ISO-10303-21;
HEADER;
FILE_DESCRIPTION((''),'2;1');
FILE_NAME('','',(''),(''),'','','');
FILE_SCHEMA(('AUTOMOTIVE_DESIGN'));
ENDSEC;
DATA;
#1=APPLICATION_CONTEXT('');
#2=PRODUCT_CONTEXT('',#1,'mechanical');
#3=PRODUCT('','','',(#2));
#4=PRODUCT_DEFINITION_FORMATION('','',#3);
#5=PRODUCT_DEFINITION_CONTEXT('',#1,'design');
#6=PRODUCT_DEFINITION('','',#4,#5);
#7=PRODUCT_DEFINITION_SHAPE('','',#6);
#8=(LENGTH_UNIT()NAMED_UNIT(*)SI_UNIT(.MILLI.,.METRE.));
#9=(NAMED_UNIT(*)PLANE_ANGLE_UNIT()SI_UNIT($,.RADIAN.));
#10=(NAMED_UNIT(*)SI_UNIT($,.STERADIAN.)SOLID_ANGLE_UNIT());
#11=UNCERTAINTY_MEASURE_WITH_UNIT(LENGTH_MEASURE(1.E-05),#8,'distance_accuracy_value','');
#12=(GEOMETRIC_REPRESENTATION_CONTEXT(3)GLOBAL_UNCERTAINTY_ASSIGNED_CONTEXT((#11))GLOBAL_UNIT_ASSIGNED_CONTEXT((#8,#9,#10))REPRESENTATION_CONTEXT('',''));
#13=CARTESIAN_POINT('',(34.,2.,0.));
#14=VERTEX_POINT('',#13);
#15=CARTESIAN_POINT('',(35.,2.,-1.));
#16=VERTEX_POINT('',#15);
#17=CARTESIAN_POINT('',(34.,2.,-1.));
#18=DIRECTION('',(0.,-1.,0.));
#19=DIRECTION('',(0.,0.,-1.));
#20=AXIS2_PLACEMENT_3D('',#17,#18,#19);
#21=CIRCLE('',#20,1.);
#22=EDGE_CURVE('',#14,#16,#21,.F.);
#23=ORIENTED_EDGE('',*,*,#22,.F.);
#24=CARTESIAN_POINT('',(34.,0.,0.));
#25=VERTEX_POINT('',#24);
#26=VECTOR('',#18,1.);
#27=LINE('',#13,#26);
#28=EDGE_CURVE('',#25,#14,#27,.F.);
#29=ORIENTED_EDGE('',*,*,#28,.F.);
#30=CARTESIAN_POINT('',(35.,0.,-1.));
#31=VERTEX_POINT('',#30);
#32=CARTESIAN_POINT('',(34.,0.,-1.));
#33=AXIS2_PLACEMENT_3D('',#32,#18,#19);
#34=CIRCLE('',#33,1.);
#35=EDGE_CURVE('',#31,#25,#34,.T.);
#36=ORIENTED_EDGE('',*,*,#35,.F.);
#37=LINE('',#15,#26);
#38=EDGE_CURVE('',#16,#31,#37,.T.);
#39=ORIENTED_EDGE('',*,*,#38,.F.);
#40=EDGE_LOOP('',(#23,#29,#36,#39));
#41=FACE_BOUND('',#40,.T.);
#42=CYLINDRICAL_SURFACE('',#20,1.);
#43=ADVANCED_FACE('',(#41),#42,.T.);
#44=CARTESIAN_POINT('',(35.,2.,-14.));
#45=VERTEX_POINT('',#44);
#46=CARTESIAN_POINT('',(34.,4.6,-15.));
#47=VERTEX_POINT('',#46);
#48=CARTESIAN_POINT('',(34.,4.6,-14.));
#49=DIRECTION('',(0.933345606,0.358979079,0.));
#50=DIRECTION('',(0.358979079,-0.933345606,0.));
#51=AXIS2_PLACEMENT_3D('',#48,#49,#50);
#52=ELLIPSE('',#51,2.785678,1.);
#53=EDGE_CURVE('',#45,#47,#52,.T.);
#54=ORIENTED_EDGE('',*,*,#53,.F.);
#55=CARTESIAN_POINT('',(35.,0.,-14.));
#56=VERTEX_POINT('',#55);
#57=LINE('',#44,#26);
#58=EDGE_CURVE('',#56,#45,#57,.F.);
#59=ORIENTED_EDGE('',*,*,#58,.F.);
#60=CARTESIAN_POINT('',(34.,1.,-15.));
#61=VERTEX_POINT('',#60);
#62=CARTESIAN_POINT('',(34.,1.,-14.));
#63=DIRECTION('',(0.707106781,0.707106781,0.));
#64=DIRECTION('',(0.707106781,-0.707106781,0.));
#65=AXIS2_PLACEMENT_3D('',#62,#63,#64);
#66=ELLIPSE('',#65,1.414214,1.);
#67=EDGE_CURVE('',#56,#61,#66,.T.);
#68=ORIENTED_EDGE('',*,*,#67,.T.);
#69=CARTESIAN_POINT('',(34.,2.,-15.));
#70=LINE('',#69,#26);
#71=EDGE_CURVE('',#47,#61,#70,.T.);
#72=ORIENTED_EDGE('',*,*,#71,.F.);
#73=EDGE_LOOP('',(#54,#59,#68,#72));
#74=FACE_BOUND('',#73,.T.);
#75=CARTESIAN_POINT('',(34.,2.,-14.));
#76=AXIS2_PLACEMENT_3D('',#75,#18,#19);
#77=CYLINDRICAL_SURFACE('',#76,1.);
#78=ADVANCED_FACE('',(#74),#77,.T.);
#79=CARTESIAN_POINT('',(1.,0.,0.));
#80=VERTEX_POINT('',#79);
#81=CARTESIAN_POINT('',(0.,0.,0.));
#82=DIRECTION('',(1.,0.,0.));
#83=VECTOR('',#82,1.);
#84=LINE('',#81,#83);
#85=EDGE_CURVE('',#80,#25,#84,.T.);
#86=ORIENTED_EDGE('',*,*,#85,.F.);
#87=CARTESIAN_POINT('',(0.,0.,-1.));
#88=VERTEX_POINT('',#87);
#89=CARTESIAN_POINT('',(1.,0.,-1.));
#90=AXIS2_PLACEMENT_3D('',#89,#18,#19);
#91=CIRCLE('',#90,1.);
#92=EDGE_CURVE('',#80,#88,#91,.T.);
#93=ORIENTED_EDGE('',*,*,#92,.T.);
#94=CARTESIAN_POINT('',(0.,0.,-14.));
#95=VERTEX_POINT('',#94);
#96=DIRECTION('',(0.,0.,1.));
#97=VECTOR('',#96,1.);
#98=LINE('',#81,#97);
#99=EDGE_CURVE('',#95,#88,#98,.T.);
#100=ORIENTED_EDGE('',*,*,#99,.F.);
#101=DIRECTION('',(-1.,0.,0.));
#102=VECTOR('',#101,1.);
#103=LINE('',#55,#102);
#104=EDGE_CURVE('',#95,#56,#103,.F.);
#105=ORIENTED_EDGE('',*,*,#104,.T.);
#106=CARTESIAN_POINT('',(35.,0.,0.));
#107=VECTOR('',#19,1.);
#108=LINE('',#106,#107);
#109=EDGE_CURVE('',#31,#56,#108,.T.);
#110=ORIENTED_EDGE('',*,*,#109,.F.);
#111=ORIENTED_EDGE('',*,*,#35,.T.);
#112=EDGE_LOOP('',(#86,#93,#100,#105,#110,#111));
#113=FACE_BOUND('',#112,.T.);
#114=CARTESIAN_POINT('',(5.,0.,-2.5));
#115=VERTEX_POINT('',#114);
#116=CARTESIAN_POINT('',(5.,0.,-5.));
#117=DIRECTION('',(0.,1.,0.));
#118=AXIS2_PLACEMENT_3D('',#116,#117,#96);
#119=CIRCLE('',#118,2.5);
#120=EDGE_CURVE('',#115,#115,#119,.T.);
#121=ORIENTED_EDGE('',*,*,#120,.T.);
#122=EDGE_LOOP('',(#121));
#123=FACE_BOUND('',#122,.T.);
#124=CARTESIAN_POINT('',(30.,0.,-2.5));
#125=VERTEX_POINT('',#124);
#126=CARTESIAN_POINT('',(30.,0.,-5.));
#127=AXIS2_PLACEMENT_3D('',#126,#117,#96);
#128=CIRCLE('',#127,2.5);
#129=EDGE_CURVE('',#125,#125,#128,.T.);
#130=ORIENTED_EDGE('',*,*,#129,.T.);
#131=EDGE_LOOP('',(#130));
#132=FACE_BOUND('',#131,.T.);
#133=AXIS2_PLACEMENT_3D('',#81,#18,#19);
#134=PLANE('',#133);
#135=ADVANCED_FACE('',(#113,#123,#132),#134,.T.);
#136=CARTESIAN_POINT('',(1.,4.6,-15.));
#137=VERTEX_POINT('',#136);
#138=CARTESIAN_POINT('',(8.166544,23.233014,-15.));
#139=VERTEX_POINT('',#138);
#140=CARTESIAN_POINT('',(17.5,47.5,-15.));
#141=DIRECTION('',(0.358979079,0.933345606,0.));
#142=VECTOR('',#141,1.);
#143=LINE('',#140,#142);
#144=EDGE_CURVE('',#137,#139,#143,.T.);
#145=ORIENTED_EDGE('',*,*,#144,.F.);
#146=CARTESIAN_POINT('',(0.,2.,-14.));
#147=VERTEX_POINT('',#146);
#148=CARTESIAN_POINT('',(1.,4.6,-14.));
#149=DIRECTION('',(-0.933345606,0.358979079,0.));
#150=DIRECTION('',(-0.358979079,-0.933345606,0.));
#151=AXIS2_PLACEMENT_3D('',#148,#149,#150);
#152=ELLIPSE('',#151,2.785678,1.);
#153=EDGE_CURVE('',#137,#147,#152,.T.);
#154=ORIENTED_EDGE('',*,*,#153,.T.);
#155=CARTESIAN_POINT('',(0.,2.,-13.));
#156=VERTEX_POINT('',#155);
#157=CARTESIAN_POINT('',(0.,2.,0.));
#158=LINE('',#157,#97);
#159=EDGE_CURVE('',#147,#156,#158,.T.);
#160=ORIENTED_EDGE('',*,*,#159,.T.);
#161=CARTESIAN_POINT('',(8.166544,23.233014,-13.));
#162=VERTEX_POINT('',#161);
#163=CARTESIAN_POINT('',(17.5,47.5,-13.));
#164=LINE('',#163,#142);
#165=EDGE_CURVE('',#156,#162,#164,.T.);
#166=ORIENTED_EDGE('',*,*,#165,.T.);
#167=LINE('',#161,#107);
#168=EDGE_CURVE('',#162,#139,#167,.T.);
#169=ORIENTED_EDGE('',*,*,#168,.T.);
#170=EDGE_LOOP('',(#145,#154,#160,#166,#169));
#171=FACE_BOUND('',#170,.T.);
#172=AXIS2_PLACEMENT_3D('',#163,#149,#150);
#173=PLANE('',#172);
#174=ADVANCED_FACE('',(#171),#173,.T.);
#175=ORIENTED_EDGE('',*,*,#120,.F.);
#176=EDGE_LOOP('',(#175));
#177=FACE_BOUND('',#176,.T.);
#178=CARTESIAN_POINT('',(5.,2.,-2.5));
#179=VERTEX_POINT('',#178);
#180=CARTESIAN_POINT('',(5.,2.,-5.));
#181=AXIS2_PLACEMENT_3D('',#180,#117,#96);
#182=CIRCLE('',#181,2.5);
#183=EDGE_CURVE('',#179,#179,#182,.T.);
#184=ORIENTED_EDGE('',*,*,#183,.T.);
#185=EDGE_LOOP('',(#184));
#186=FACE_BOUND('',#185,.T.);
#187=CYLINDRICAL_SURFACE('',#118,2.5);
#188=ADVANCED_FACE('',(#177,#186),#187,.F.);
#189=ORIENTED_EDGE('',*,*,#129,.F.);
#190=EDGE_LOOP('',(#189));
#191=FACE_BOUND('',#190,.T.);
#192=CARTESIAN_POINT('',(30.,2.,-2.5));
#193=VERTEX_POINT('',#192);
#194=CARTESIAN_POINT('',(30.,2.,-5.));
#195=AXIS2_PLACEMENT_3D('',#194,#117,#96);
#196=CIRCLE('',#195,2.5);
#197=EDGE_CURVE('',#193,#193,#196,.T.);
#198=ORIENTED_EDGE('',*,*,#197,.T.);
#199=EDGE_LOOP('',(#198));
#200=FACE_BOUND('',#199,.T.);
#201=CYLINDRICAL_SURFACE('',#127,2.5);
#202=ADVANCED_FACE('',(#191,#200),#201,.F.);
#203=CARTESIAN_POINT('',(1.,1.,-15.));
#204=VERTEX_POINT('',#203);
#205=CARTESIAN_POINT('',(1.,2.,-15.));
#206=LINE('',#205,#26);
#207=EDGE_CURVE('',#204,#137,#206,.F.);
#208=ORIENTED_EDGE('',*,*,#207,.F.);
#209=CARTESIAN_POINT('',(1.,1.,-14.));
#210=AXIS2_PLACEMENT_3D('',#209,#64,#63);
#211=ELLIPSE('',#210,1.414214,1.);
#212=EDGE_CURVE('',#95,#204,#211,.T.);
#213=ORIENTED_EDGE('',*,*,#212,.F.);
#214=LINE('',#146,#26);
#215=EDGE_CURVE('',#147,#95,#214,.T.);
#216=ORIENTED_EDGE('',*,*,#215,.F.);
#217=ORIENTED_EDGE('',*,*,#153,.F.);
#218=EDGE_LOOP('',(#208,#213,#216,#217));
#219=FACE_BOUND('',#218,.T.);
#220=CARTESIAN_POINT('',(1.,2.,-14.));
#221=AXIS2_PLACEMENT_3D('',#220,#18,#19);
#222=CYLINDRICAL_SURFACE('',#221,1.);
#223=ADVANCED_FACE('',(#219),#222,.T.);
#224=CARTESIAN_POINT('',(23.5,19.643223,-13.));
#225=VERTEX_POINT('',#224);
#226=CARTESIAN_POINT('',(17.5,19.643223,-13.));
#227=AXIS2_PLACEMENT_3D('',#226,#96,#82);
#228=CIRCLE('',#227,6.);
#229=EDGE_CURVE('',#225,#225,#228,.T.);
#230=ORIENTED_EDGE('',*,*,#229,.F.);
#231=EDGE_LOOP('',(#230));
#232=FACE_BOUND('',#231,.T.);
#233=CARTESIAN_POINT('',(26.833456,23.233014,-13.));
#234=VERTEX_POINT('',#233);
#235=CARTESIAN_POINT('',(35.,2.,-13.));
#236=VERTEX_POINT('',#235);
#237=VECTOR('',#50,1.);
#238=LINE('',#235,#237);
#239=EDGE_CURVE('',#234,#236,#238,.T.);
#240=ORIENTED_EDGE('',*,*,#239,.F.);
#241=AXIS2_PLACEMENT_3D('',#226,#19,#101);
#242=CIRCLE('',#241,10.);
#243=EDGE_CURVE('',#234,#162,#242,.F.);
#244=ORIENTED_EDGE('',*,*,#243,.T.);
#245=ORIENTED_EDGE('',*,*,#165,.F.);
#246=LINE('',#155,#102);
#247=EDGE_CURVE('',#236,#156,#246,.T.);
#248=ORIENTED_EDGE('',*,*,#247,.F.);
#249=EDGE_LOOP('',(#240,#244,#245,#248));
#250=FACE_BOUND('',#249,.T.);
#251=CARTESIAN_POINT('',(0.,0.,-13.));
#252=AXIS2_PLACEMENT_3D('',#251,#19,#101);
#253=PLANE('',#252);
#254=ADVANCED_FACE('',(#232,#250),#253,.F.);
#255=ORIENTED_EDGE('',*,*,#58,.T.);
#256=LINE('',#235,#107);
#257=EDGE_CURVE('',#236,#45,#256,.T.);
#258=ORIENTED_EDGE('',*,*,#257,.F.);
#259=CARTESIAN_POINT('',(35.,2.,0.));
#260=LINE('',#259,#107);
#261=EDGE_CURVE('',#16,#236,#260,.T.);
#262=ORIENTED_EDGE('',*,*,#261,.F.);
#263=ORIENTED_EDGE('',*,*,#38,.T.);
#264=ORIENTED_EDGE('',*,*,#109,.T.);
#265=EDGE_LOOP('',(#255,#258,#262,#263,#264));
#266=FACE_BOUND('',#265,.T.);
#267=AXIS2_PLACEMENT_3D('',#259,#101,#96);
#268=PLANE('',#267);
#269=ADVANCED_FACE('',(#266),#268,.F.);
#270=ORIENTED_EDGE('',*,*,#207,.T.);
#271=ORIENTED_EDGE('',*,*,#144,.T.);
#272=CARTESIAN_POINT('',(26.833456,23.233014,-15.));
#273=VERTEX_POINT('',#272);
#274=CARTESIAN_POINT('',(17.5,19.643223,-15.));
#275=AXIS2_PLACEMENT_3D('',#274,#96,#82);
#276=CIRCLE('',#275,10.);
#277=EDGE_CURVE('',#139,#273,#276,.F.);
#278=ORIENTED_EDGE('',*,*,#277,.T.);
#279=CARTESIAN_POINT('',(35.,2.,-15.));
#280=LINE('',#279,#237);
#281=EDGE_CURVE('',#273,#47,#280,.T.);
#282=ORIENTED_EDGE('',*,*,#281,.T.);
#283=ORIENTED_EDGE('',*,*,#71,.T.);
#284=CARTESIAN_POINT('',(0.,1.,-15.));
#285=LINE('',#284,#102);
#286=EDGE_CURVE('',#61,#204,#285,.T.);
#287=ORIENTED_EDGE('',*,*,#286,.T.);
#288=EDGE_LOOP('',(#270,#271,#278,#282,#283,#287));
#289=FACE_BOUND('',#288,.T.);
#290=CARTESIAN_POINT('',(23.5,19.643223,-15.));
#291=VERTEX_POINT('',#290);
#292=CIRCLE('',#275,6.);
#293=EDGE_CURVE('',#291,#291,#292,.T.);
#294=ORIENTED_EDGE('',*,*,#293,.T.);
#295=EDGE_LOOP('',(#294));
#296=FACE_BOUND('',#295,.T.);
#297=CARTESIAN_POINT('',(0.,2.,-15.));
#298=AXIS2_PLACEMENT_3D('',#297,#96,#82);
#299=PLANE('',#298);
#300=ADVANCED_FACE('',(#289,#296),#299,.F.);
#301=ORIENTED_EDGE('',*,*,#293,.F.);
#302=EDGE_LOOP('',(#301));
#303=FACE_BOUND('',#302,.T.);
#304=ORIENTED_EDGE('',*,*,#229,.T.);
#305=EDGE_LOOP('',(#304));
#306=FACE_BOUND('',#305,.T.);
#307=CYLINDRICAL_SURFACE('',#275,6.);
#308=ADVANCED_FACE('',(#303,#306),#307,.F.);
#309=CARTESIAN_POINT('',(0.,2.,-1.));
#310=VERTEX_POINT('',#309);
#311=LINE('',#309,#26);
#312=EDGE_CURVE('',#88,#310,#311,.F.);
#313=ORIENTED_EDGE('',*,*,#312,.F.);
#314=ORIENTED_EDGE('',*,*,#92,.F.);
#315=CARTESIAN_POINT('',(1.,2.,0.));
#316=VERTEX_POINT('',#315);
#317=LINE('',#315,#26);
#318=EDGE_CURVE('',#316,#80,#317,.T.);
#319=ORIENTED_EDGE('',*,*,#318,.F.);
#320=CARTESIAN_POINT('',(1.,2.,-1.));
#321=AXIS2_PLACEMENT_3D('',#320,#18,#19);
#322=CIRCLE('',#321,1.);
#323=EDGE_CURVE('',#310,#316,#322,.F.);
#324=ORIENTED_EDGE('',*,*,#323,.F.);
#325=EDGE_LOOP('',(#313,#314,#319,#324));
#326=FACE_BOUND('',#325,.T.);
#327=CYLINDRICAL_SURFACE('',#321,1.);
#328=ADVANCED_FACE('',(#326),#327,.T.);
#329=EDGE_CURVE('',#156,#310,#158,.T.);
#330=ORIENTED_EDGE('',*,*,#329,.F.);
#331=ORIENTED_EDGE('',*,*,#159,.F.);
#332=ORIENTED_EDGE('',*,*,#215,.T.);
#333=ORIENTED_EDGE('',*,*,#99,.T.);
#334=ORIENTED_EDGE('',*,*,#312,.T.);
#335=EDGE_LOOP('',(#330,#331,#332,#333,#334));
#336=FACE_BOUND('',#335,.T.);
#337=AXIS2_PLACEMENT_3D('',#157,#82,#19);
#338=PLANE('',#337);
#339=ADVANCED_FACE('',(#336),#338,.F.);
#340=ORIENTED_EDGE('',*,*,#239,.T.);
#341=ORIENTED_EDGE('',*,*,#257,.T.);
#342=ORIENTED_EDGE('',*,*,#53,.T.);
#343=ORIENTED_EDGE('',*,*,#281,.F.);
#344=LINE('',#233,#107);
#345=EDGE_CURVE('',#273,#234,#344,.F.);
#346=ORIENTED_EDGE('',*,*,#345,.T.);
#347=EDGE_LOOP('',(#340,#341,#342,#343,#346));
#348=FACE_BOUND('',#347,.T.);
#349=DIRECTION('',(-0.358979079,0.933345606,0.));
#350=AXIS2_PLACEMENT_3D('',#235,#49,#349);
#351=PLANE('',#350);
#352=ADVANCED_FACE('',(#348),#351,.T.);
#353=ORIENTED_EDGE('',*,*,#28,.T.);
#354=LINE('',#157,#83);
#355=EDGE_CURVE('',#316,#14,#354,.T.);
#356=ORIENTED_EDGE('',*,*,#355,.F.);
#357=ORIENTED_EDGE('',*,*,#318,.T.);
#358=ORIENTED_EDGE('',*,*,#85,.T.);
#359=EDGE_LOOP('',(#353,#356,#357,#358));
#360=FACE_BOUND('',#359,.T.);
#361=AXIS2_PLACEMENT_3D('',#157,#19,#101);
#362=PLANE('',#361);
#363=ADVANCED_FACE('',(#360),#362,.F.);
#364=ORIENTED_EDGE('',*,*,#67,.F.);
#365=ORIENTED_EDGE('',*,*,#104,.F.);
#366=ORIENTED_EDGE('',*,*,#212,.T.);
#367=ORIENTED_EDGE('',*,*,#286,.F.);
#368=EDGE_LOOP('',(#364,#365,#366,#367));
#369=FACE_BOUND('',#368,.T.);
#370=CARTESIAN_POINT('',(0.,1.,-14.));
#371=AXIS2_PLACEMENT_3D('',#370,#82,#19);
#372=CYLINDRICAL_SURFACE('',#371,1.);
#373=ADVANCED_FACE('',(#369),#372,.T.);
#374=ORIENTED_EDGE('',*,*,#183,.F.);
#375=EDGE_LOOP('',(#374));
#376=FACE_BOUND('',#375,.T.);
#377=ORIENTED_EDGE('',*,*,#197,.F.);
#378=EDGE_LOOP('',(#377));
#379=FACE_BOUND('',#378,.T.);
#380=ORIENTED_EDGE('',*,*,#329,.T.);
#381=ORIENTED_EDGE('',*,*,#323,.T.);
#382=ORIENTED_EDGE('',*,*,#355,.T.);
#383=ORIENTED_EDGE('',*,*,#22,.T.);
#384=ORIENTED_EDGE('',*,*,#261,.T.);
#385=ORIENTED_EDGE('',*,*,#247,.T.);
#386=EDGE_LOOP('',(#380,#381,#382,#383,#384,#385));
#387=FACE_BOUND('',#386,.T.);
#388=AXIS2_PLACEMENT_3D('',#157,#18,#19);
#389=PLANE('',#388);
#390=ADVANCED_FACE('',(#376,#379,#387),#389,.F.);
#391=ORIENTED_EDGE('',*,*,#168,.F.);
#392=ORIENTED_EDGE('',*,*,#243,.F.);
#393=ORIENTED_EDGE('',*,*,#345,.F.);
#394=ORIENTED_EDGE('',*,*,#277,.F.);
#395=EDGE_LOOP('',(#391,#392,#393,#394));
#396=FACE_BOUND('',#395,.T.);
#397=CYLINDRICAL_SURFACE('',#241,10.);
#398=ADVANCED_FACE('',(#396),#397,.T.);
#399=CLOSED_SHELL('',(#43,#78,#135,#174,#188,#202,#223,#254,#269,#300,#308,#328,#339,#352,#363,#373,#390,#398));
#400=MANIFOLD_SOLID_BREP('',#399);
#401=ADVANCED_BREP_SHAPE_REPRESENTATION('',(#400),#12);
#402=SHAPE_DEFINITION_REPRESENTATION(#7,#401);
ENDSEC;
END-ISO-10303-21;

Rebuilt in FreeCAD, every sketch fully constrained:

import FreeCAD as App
import Part
import Sketcher
Q = App.Units.Quantity


def edges_at(feature, points):
    """Names of the edges that pass closest to the given points."""
    edges = feature.Shape.Edges
    near = lambda p: min(range(len(edges)), key=lambda i: edges[i].distToShape(Part.Vertex(*p))[0])
    return sorted({f"Edge{near(p) + 1}" for p in points})

doc = App.newDocument("Part")
body = doc.addObject("PartDesign::Body", "Body")

# Sketch on XZ plane
sketch1 = body.newObject("Sketcher::SketchObject", "Sketch")
sketch1.AttachmentSupport = (doc.getObject("XZ_Plane"), [""])
sketch1.MapMode = "FlatFace"
sketch1.addGeometry([
    Part.LineSegment(App.Vector(0, -15, 0), App.Vector(0, 0, 0)),
    Part.LineSegment(App.Vector(0, 0, 0), App.Vector(35, 0, 0)),
    Part.LineSegment(App.Vector(35, 0, 0), App.Vector(35, -15, 0)),
    Part.LineSegment(App.Vector(35, -15, 0), App.Vector(0, -15, 0)),
], False)
sketch1.addConstraint([
    Sketcher.Constraint("Coincident", 0, 2, 1, 1),
    Sketcher.Constraint("Coincident", 1, 2, 2, 1),
    Sketcher.Constraint("Coincident", 2, 2, 3, 1),
    Sketcher.Constraint("Coincident", 3, 2, 0, 1),
    Sketcher.Constraint("Vertical", 0),
    Sketcher.Constraint("Horizontal", 1),
    Sketcher.Constraint("Vertical", 2),
    Sketcher.Constraint("Horizontal", 3),
    Sketcher.Constraint("Coincident", 0, 2, -1, 1),
    Sketcher.Constraint("DistanceX", 1, 1, 1, 2, Q("35 mm")),
    Sketcher.Constraint("DistanceY", 0, 1, 0, 2, Q("15 mm")),
])
pad1 = body.newObject("PartDesign::Pad", "Pad")
pad1.Profile = sketch1
pad1.Length = 2
pad1.Reversed = True

# Sketch on XY plane
sketch2 = body.newObject("Sketcher::SketchObject", "Sketch001")
sketch2.AttachmentSupport = (doc.getObject("XY_Plane"), [""])
sketch2.MapMode = "FlatFace"
sketch2.AttachmentOffset = App.Placement(App.Vector(0, 0, -15), App.Rotation())
sketch2.addGeometry([
    Part.LineSegment(App.Vector(35, 2, 0), App.Vector(0, 2, 0)),
    Part.LineSegment(App.Vector(0, 2, 0), App.Vector(17.5, 47.5, 0)),
    Part.LineSegment(App.Vector(17.5, 47.5, 0), App.Vector(35, 2, 0)),
], False)
sketch2.addConstraint([
    Sketcher.Constraint("Coincident", 0, 2, 1, 1),
    Sketcher.Constraint("Coincident", 1, 2, 2, 1),
    Sketcher.Constraint("Coincident", 2, 2, 0, 1),
    Sketcher.Constraint("Horizontal", 0),
    Sketcher.Constraint("PointOnObject", 0, 2, -2),
    Sketcher.Constraint("Equal", 1, 2),
    Sketcher.Constraint("DistanceX", 0, 2, 0, 1, Q("35 mm")),
    Sketcher.Constraint("DistanceY", -1, 1, 0, 2, Q("2 mm")),
    Sketcher.Constraint("DistanceY", -1, 1, 1, 2, Q("47.5 mm")),
])
pad2 = body.newObject("PartDesign::Pad", "Pad001")
pad2.Profile = sketch2
pad2.Length = 2
doc.recompute()

fillet = body.newObject("PartDesign::Fillet", "Fillet")
fillet.Base = (pad2, edges_at(pad2, [(17.5, 47.5, -14)]))
fillet.Radius = 10
doc.recompute()

fillet2 = body.newObject("PartDesign::Fillet", "Fillet001")
fillet2.Base = (fillet, edges_at(fillet, [(17.5, 0, -15), (0, 1, -15), (35, 1, -15)]))
fillet2.Radius = 1
doc.recompute()

fillet3 = body.newObject("PartDesign::Fillet", "Fillet002")
fillet3.Base = (fillet2, edges_at(fillet2, [(35, 1, 0), (0, 1, 0)]))
fillet3.Radius = 1

# Sketch on XZ plane
sketch3 = body.newObject("Sketcher::SketchObject", "Sketch002")
sketch3.AttachmentSupport = (doc.getObject("XZ_Plane"), [""])
sketch3.MapMode = "FlatFace"
sketch3.AttachmentOffset = App.Placement(App.Vector(0, 0, -2), App.Rotation())
sketch3.addGeometry([
    Part.Circle(App.Vector(5, -5, 0), App.Vector(0, 0, 1), 2.5),
    Part.Circle(App.Vector(30, -5, 0), App.Vector(0, 0, 1), 2.5),
], False)
sketch3.addConstraint([
    Sketcher.Constraint("Equal", 0, 1),
    Sketcher.Constraint("Horizontal", 0, 3, 1, 3),
    Sketcher.Constraint("Diameter", 0, Q("5 mm")),
    Sketcher.Constraint("DistanceX", -1, 1, 0, 3, Q("5 mm")),
    Sketcher.Constraint("DistanceY", 0, 3, -1, 1, Q("5 mm")),
    Sketcher.Constraint("DistanceX", -1, 1, 1, 3, Q("30 mm")),
])
pocket1 = body.newObject("PartDesign::Pocket", "Pocket")
pocket1.Profile = sketch3
pocket1.Type = "ThroughAll"
pocket1.Reversed = True

# Sketch on XY plane
sketch4 = body.newObject("Sketcher::SketchObject", "Sketch003")
sketch4.AttachmentSupport = (doc.getObject("XY_Plane"), [""])
sketch4.MapMode = "FlatFace"
sketch4.AttachmentOffset = App.Placement(App.Vector(0, 0, -13), App.Rotation())
sketch4.addGeometry(Part.Circle(App.Vector(17.5, 19.643223, 0), App.Vector(0, 0, 1), 6), False)
sketch4.addConstraint([
    Sketcher.Constraint("Diameter", 0, Q("12 mm")),
    Sketcher.Constraint("DistanceX", -1, 1, 0, 3, Q("17.5 mm")),
    Sketcher.Constraint("DistanceY", -1, 1, 0, 3, Q("19.643223 mm")),
])
pocket2 = body.newObject("PartDesign::Pocket", "Pocket001")
pocket2.Profile = sketch4
pocket2.Type = "ThroughAll"

doc.recompute()
